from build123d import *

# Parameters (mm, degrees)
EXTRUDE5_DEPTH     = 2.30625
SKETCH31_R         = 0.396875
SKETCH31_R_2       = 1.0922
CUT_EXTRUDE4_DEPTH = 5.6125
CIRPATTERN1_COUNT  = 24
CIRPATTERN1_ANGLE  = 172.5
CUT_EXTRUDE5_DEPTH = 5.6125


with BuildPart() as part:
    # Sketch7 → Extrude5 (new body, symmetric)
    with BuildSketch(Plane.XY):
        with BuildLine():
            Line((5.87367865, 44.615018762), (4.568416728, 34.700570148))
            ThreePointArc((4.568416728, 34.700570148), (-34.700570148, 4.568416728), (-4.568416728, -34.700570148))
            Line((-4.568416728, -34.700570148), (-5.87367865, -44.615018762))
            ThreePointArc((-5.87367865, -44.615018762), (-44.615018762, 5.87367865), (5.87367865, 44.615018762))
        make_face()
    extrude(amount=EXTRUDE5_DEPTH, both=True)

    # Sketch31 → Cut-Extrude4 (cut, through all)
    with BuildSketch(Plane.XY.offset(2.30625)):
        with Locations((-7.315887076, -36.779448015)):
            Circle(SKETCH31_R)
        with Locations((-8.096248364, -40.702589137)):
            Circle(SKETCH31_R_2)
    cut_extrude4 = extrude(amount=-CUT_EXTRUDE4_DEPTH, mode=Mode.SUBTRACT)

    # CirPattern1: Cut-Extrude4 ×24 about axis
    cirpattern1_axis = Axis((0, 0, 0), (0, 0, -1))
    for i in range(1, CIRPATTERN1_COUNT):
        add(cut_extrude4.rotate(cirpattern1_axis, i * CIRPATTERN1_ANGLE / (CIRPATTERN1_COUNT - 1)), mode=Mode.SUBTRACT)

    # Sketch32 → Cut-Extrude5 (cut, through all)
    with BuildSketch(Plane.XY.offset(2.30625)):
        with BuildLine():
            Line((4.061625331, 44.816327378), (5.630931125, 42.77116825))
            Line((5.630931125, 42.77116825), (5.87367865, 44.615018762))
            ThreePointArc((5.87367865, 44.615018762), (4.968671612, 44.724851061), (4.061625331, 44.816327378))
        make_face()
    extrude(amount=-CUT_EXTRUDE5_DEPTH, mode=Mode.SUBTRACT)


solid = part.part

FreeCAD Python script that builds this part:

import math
import FreeCAD as App
import Part
import Sketcher

V = App.Vector
Q = App.Units.Quantity

doc = App.newDocument("Part")
body = doc.addObject("PartDesign::Body", "Body")

sketch1 = body.newObject("Sketcher::SketchObject", "Sketch")
sketch1.AttachmentSupport = (doc.getObject("XY_Plane"), [""])
sketch1.MapMode = "FlatFace"
sketch1.addGeometry([
    Part.LineSegment(V(5, 35, 0), V(6, 45, 0)),
    Part.ArcOfCircle(Part.Circle(V(0, 0, 0), V(0, 0, 1), 45), math.radians(82), math.radians(262)),
    Part.LineSegment(V(-6, -45, 0), V(-5, -35, 0)),
    Part.ArcOfCircle(Part.Circle(V(0, 0, 0), V(0, 0, 1), 35), math.radians(82), math.radians(262)),
], False)
sketch1.addConstraint([
    Sketcher.Constraint("Coincident", 0, 2, 1, 1),
    Sketcher.Constraint("Coincident", 1, 2, 2, 1),
    Sketcher.Constraint("Coincident", 2, 2, 3, 2),
    Sketcher.Constraint("Coincident", 3, 1, 0, 1),
    Sketcher.Constraint("Coincident", 1, 3, -1, 1),
    Sketcher.Constraint("Coincident", 3, 3, -1, 1),
    Sketcher.Constraint("Parallel", 0, 2),
    Sketcher.Constraint("Radius", 1, 45.0),
    Sketcher.Constraint("Radius", 3, 35.0),
    Sketcher.Constraint("Angle", 0, Q("82.5 deg")),
    Sketcher.Constraint("DistanceX", -1, 1, 0, 2, 5.873679),
    Sketcher.Constraint("DistanceX", 1, 2, -1, 1, 5.873679),
])
pad1 = body.newObject("PartDesign::Pad", "Pad")
pad1.Profile = sketch1
pad1.Length = 4.6125
pad1.Midplane = True

sketch2 = body.newObject("Sketcher::SketchObject", "Sketch001")
sketch2.AttachmentSupport = (doc.getObject("XY_Plane"), [""])
sketch2.MapMode = "FlatFace"
sketch2.AttachmentOffset = App.Placement(V(0, 0, 2.30625), App.Rotation())
sketch2.addGeometry([
    Part.Circle(V(-7.32, -36.78, 0), V(0, 0, 1), 0.4),
    Part.Circle(V(-8.1, -40.7, 0), V(0, 0, 1), 1.09),
], False)
sketch2.addConstraint([
    Sketcher.Constraint("Diameter", 1, 2.1844),
    Sketcher.Constraint("Diameter", 0, 0.79375),
    Sketcher.Constraint("DistanceY", 0, 3, -1, 1, 36.779448),
    Sketcher.Constraint("DistanceX", 1, 3, -1, 1, 8.096248),
    Sketcher.Constraint("DistanceY", 1, 3, -1, 1, 40.702589),
    Sketcher.Constraint("DistanceX", 1, 3, 0, 3, 0.780361),
])
pocket1 = body.newObject("PartDesign::Pocket", "Pocket")
pocket1.Profile = sketch2
pocket1.Type = "ThroughAll"
doc.recompute()

polarpattern = body.newObject("PartDesign::PolarPattern", "PolarPattern")
polarpattern.Originals = [pocket1]
polarpattern.Axis = (doc.getObject("Z_Axis"), [""])
polarpattern.Angle = 172.5
polarpattern.Occurrences = 24
polarpattern.Reversed = True
body.Tip = polarpattern

sketch3 = body.newObject("Sketcher::SketchObject", "Sketch002")
sketch3.AttachmentSupport = (doc.getObject("XY_Plane"), [""])
sketch3.MapMode = "FlatFace"
sketch3.AttachmentOffset = App.Placement(V(0, 0, 2.30625), App.Rotation())
sketch3.addGeometry([
    Part.LineSegment(V(4.1, 44.8, 0), V(5.6, 42.8, 0)),
    Part.LineSegment(V(5.6, 42.8, 0), V(5.9, 44.6, 0)),
    Part.ArcOfCircle(Part.Circle(V(0, 0, 0), V(0, 0, 1), 45), math.radians(82.5), math.radians(84.82)),
], False)
sketch3.addConstraint([
    Sketcher.Constraint("Coincident", 0, 2, 1, 1),
    Sketcher.Constraint("Coincident", 1, 2, 2, 1),
    Sketcher.Constraint("Coincident", 2, 2, 0, 1),
    Sketcher.Constraint("Coincident", 2, 3, -1, 1),
    Sketcher.Constraint("Radius", 2, 44.999999),
    Sketcher.Constraint("Angle", 0, Q("-52.5 deg")),
    Sketcher.Constraint("Angle", 1, Q("82.5 deg")),
    Sketcher.Constraint("Distance", 1, 1.859761),
    Sketcher.Constraint("DistanceX", -1, 1, 0, 2, 5.630931),
])
pocket2 = body.newObject("PartDesign::Pocket", "Pocket001")
pocket2.Profile = sketch3
pocket2.Type = "ThroughAll"

doc.recompute()
